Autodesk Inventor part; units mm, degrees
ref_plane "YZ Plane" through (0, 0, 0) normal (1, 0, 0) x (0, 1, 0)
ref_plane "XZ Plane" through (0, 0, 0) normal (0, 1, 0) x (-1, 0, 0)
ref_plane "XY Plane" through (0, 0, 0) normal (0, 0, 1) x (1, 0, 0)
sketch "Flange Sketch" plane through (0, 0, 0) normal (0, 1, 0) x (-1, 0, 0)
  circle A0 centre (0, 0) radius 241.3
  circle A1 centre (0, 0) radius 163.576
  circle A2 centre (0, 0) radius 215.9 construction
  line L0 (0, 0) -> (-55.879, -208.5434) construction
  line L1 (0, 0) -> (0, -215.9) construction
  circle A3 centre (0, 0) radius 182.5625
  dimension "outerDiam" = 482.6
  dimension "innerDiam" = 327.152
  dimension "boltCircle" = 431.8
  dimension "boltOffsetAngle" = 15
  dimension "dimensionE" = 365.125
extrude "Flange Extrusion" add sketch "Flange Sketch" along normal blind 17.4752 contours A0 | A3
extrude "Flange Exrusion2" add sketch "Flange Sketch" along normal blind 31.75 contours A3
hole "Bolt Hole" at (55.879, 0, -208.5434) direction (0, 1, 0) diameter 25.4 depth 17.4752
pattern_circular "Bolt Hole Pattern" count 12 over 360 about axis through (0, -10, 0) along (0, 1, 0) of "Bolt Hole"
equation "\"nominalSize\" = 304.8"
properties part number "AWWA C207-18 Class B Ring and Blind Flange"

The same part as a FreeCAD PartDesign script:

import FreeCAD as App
import Part
import Sketcher

V = App.Vector
Q = App.Units.Quantity

doc = App.newDocument("Part")
body = doc.addObject("PartDesign::Body", "Body")

# Sketch on XZ plane
sketch1 = body.newObject("Sketcher::SketchObject", "Sketch")
sketch1.AttachmentSupport = (doc.getObject("XZ_Plane"), [""])
sketch1.MapMode = "FlatFace"
sketch1.addGeometry(Part.Circle(V(0, 0, 0), V(0, 0, 1), 241), False)
sketch1.addGeometry(Part.Circle(V(0, 0, 0), V(0, 0, 1), 164), False)
sketch1.addConstraint(Sketcher.Constraint("Coincident", 0, 3, -1, 1))
sketch1.addConstraint(Sketcher.Constraint("Coincident", 1, 3, -1, 1))
sketch1.addConstraint(Sketcher.Constraint("Diameter", 0, Q("19 in")))
sketch1.addConstraint(Sketcher.Constraint("Diameter", 1, Q("12.88 in")))
pad1 = body.newObject("PartDesign::Pad", "Pad")
pad1.Profile = sketch1
pad1.Length = Q("0.688 in")
pad1.Reversed = True

# Sketch on XZ plane
sketch2 = body.newObject("Sketcher::SketchObject", "Sketch001")
sketch2.AttachmentSupport = (doc.getObject("XZ_Plane"), [""])
sketch2.MapMode = "FlatFace"
sketch2.addGeometry(Part.Circle(V(0, 0, 0), V(0, 0, 1), 183), False)
sketch2.addGeometry(Part.Circle(V(0, 0, 0), V(0, 0, 1), 164), False)
sketch2.addConstraint(Sketcher.Constraint("Coincident", 0, 3, -1, 1))
sketch2.addConstraint(Sketcher.Constraint("Coincident", 1, 3, -1, 1))
sketch2.addConstraint(Sketcher.Constraint("Diameter", 1, Q("12.88 in")))
sketch2.addConstraint(Sketcher.Constraint("Diameter", 0, Q("14.375 in")))
pad2 = body.newObject("PartDesign::Pad", "Pad001")
pad2.Profile = sketch2
pad2.Length = Q("1.25 in")
pad2.Reversed = True

# Sketch on XZ plane
sketch3 = body.newObject("Sketcher::SketchObject", "Sketch002")
sketch3.AttachmentSupport = (doc.getObject("XZ_Plane"), [""])
sketch3.MapMode = "FlatFace"
sketch3.addGeometry(Part.Circle(V(56, -209, 0), V(0, 0, 1), 13), False)
sketch3.addConstraint(Sketcher.Constraint("Diameter", 0, Q("1 in")))
sketch3.addConstraint(Sketcher.Constraint("DistanceX", -1, 1, 0, 3, Q("55.879 mm")))
sketch3.addConstraint(Sketcher.Constraint("DistanceY", 0, 3, -1, 1, Q("208.5434 mm")))
doc.recompute()
hole = body.newObject("PartDesign::Hole", "Hole")
hole.Profile = sketch3
hole.ThreadType = "None"
hole.Diameter = Q("1 in")
hole.DepthType = "Dimension"
hole.Depth = Q("0.688 in")
hole.DrillPoint = "Flat"
doc.recompute()

polarpattern = body.newObject("PartDesign::PolarPattern", "PolarPattern")
polarpattern.Originals = [hole]
polarpattern.Axis = (doc.getObject("Y_Axis"), [""])
polarpattern.Angle = 360
polarpattern.Occurrences = 12
body.Tip = polarpattern

doc.recompute()
